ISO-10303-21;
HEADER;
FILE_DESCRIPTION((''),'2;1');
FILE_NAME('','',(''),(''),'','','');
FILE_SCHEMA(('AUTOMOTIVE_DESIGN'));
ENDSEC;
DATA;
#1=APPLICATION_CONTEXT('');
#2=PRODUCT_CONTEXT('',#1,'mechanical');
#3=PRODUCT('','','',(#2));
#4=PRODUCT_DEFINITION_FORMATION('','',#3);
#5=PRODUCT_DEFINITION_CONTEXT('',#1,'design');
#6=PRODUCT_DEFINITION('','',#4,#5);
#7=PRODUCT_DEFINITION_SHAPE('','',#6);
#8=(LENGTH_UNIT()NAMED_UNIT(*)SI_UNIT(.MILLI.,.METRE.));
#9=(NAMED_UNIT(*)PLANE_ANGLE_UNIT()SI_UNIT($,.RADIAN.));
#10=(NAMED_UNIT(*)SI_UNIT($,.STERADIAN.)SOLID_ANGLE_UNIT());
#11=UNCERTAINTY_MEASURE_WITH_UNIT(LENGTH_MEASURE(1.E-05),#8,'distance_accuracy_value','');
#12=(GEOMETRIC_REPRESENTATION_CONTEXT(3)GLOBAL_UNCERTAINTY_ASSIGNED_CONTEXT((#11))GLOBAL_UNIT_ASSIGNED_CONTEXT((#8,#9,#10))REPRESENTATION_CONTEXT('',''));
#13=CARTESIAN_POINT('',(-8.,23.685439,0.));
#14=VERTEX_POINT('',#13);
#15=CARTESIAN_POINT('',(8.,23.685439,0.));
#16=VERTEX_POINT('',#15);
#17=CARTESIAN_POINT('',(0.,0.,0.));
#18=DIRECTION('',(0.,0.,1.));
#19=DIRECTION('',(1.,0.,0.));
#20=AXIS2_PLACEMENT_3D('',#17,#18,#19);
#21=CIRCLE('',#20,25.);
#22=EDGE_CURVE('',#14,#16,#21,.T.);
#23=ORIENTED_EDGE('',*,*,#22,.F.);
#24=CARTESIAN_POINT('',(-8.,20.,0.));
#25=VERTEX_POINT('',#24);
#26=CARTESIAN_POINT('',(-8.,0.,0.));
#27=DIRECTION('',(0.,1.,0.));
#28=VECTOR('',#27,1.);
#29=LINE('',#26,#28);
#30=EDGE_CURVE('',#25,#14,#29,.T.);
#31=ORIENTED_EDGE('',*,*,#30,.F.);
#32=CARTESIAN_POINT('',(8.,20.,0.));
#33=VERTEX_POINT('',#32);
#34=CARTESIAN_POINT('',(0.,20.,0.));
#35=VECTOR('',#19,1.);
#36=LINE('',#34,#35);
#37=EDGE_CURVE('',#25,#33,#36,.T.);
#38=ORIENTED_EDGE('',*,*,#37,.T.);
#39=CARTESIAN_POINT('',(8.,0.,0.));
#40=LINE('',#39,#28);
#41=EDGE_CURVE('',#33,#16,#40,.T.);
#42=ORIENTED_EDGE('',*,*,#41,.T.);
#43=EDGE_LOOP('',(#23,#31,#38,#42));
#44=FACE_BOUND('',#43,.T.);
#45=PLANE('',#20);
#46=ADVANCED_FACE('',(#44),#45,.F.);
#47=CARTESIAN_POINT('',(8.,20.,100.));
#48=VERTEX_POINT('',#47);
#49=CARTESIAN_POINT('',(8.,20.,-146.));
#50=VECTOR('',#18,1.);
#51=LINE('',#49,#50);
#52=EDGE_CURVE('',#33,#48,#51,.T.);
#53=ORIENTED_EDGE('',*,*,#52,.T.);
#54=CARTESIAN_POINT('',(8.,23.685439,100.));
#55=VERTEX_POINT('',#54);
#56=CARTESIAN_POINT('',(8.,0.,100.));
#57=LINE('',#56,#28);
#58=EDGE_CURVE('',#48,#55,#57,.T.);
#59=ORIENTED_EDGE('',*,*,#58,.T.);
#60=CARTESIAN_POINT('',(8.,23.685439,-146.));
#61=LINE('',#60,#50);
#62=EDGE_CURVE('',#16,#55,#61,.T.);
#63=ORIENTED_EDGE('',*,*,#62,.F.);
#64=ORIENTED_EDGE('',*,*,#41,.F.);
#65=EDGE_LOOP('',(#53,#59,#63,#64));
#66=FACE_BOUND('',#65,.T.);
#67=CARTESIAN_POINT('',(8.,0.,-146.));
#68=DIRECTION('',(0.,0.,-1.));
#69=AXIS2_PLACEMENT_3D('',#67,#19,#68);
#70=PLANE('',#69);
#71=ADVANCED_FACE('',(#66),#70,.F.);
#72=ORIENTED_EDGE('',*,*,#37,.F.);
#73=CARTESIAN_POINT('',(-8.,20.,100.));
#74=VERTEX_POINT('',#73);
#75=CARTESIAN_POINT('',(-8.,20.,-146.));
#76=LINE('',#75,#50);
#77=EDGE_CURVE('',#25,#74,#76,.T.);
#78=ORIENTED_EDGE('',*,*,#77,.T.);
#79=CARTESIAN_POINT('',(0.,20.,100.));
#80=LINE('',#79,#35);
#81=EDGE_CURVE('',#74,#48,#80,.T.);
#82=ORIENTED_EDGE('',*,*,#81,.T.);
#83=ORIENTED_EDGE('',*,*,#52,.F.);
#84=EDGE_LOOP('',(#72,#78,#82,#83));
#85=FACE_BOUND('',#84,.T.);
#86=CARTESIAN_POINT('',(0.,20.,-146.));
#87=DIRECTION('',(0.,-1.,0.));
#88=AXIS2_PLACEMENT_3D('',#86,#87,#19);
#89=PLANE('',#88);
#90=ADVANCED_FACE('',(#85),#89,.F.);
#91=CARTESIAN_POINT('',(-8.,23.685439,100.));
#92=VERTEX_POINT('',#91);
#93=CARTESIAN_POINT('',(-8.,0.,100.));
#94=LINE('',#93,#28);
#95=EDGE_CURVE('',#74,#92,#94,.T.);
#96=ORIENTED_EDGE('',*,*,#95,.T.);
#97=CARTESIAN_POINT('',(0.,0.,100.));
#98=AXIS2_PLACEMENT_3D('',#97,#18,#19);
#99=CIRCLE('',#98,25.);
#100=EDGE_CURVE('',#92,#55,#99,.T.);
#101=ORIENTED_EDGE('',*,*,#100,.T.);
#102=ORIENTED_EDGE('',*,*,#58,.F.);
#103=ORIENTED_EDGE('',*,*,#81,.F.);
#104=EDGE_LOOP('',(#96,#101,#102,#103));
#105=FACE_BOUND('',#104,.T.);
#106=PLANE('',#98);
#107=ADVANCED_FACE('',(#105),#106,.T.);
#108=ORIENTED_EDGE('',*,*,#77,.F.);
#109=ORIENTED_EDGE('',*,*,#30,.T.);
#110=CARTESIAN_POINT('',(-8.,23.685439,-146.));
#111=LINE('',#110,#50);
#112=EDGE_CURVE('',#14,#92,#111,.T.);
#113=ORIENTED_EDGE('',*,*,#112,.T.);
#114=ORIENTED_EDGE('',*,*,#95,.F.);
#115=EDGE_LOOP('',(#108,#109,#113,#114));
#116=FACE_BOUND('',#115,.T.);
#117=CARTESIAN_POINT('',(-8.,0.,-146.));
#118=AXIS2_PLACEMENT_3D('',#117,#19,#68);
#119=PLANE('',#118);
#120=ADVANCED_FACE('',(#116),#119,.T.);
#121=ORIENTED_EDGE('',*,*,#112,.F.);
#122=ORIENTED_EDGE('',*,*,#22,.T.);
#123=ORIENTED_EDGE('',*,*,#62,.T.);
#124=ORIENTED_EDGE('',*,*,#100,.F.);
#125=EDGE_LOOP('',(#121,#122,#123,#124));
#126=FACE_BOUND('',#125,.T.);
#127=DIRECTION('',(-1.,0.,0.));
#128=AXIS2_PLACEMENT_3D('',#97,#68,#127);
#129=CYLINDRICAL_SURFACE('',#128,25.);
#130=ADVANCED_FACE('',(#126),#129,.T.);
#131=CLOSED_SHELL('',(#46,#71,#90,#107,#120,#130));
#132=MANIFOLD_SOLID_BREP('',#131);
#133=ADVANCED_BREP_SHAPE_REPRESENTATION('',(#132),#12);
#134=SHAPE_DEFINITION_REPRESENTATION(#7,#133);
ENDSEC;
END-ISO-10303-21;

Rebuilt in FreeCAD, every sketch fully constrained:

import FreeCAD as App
import Part
import Sketcher
from FreeCAD import Vector


def add_polygon(sketch, points):
    """Adds a closed chain of lines whose ends are joined by coincident constraints."""
    first, n = sketch.GeometryCount, len(points)
    for a, b in zip(points, points[1:] + points[:1]):
        sketch.addGeometry(Part.LineSegment(App.Vector(*a, 0), App.Vector(*b, 0)), False)
    for i in range(n):
        sketch.addConstraint(Sketcher.Constraint("Coincident", first + i, 2, first + (i + 1) % n, 1))

doc = App.newDocument("Part")
body = doc.addObject("PartDesign::Body", "Body")

# Sketch on XY plane
sketch1 = body.newObject("Sketcher::SketchObject", "Sketch")
sketch1.AttachmentSupport = (doc.getObject("XY_Plane"), [""])
sketch1.MapMode = "FlatFace"
sketch1.addGeometry(Part.Circle(Vector(0, 0, 0), Vector(0, 0, 1), 25), False)
sketch1.addConstraint([
    Sketcher.Constraint("Coincident", 0, 3, -1, 1),
    Sketcher.Constraint("Diameter", 0, 50.0),
])
pad1 = body.newObject("PartDesign::Pad", "Pad")
pad1.Profile = sketch1
pad1.Length = 100

# Sketch on XY plane
sketch2 = body.newObject("Sketcher::SketchObject", "Sketch001")
sketch2.AttachmentSupport = (doc.getObject("XY_Plane"), [""])
sketch2.MapMode = "FlatFace"
sketch2.AttachmentOffset = App.Placement(Vector(0, 0, 100), App.Rotation())
add_polygon(sketch2, [(-8, 20), (8, 20), (8, 406.578892), (-8, 406.578892)])  # lines 0-3
sketch2.addConstraint([
    Sketcher.Constraint("Horizontal", 0),
    Sketcher.Constraint("Vertical", 1),
    Sketcher.Constraint("Horizontal", 2),
    Sketcher.Constraint("Vertical", 3),
    Sketcher.Constraint("DistanceX", 0, 1, 0, 2, 16.0),
    Sketcher.Constraint("DistanceX", -1, 1, 0, 2, 8.0),
    Sketcher.Constraint("DistanceY", -1, 1, 0, 2, 20.0),
    Sketcher.Constraint("DistanceY", 1, 1, 1, 2, 386.578892),
])
pocket1 = body.newObject("PartDesign::Pocket", "Pocket")
pocket1.Profile = sketch2
pocket1.Length = 246

doc.recompute()
